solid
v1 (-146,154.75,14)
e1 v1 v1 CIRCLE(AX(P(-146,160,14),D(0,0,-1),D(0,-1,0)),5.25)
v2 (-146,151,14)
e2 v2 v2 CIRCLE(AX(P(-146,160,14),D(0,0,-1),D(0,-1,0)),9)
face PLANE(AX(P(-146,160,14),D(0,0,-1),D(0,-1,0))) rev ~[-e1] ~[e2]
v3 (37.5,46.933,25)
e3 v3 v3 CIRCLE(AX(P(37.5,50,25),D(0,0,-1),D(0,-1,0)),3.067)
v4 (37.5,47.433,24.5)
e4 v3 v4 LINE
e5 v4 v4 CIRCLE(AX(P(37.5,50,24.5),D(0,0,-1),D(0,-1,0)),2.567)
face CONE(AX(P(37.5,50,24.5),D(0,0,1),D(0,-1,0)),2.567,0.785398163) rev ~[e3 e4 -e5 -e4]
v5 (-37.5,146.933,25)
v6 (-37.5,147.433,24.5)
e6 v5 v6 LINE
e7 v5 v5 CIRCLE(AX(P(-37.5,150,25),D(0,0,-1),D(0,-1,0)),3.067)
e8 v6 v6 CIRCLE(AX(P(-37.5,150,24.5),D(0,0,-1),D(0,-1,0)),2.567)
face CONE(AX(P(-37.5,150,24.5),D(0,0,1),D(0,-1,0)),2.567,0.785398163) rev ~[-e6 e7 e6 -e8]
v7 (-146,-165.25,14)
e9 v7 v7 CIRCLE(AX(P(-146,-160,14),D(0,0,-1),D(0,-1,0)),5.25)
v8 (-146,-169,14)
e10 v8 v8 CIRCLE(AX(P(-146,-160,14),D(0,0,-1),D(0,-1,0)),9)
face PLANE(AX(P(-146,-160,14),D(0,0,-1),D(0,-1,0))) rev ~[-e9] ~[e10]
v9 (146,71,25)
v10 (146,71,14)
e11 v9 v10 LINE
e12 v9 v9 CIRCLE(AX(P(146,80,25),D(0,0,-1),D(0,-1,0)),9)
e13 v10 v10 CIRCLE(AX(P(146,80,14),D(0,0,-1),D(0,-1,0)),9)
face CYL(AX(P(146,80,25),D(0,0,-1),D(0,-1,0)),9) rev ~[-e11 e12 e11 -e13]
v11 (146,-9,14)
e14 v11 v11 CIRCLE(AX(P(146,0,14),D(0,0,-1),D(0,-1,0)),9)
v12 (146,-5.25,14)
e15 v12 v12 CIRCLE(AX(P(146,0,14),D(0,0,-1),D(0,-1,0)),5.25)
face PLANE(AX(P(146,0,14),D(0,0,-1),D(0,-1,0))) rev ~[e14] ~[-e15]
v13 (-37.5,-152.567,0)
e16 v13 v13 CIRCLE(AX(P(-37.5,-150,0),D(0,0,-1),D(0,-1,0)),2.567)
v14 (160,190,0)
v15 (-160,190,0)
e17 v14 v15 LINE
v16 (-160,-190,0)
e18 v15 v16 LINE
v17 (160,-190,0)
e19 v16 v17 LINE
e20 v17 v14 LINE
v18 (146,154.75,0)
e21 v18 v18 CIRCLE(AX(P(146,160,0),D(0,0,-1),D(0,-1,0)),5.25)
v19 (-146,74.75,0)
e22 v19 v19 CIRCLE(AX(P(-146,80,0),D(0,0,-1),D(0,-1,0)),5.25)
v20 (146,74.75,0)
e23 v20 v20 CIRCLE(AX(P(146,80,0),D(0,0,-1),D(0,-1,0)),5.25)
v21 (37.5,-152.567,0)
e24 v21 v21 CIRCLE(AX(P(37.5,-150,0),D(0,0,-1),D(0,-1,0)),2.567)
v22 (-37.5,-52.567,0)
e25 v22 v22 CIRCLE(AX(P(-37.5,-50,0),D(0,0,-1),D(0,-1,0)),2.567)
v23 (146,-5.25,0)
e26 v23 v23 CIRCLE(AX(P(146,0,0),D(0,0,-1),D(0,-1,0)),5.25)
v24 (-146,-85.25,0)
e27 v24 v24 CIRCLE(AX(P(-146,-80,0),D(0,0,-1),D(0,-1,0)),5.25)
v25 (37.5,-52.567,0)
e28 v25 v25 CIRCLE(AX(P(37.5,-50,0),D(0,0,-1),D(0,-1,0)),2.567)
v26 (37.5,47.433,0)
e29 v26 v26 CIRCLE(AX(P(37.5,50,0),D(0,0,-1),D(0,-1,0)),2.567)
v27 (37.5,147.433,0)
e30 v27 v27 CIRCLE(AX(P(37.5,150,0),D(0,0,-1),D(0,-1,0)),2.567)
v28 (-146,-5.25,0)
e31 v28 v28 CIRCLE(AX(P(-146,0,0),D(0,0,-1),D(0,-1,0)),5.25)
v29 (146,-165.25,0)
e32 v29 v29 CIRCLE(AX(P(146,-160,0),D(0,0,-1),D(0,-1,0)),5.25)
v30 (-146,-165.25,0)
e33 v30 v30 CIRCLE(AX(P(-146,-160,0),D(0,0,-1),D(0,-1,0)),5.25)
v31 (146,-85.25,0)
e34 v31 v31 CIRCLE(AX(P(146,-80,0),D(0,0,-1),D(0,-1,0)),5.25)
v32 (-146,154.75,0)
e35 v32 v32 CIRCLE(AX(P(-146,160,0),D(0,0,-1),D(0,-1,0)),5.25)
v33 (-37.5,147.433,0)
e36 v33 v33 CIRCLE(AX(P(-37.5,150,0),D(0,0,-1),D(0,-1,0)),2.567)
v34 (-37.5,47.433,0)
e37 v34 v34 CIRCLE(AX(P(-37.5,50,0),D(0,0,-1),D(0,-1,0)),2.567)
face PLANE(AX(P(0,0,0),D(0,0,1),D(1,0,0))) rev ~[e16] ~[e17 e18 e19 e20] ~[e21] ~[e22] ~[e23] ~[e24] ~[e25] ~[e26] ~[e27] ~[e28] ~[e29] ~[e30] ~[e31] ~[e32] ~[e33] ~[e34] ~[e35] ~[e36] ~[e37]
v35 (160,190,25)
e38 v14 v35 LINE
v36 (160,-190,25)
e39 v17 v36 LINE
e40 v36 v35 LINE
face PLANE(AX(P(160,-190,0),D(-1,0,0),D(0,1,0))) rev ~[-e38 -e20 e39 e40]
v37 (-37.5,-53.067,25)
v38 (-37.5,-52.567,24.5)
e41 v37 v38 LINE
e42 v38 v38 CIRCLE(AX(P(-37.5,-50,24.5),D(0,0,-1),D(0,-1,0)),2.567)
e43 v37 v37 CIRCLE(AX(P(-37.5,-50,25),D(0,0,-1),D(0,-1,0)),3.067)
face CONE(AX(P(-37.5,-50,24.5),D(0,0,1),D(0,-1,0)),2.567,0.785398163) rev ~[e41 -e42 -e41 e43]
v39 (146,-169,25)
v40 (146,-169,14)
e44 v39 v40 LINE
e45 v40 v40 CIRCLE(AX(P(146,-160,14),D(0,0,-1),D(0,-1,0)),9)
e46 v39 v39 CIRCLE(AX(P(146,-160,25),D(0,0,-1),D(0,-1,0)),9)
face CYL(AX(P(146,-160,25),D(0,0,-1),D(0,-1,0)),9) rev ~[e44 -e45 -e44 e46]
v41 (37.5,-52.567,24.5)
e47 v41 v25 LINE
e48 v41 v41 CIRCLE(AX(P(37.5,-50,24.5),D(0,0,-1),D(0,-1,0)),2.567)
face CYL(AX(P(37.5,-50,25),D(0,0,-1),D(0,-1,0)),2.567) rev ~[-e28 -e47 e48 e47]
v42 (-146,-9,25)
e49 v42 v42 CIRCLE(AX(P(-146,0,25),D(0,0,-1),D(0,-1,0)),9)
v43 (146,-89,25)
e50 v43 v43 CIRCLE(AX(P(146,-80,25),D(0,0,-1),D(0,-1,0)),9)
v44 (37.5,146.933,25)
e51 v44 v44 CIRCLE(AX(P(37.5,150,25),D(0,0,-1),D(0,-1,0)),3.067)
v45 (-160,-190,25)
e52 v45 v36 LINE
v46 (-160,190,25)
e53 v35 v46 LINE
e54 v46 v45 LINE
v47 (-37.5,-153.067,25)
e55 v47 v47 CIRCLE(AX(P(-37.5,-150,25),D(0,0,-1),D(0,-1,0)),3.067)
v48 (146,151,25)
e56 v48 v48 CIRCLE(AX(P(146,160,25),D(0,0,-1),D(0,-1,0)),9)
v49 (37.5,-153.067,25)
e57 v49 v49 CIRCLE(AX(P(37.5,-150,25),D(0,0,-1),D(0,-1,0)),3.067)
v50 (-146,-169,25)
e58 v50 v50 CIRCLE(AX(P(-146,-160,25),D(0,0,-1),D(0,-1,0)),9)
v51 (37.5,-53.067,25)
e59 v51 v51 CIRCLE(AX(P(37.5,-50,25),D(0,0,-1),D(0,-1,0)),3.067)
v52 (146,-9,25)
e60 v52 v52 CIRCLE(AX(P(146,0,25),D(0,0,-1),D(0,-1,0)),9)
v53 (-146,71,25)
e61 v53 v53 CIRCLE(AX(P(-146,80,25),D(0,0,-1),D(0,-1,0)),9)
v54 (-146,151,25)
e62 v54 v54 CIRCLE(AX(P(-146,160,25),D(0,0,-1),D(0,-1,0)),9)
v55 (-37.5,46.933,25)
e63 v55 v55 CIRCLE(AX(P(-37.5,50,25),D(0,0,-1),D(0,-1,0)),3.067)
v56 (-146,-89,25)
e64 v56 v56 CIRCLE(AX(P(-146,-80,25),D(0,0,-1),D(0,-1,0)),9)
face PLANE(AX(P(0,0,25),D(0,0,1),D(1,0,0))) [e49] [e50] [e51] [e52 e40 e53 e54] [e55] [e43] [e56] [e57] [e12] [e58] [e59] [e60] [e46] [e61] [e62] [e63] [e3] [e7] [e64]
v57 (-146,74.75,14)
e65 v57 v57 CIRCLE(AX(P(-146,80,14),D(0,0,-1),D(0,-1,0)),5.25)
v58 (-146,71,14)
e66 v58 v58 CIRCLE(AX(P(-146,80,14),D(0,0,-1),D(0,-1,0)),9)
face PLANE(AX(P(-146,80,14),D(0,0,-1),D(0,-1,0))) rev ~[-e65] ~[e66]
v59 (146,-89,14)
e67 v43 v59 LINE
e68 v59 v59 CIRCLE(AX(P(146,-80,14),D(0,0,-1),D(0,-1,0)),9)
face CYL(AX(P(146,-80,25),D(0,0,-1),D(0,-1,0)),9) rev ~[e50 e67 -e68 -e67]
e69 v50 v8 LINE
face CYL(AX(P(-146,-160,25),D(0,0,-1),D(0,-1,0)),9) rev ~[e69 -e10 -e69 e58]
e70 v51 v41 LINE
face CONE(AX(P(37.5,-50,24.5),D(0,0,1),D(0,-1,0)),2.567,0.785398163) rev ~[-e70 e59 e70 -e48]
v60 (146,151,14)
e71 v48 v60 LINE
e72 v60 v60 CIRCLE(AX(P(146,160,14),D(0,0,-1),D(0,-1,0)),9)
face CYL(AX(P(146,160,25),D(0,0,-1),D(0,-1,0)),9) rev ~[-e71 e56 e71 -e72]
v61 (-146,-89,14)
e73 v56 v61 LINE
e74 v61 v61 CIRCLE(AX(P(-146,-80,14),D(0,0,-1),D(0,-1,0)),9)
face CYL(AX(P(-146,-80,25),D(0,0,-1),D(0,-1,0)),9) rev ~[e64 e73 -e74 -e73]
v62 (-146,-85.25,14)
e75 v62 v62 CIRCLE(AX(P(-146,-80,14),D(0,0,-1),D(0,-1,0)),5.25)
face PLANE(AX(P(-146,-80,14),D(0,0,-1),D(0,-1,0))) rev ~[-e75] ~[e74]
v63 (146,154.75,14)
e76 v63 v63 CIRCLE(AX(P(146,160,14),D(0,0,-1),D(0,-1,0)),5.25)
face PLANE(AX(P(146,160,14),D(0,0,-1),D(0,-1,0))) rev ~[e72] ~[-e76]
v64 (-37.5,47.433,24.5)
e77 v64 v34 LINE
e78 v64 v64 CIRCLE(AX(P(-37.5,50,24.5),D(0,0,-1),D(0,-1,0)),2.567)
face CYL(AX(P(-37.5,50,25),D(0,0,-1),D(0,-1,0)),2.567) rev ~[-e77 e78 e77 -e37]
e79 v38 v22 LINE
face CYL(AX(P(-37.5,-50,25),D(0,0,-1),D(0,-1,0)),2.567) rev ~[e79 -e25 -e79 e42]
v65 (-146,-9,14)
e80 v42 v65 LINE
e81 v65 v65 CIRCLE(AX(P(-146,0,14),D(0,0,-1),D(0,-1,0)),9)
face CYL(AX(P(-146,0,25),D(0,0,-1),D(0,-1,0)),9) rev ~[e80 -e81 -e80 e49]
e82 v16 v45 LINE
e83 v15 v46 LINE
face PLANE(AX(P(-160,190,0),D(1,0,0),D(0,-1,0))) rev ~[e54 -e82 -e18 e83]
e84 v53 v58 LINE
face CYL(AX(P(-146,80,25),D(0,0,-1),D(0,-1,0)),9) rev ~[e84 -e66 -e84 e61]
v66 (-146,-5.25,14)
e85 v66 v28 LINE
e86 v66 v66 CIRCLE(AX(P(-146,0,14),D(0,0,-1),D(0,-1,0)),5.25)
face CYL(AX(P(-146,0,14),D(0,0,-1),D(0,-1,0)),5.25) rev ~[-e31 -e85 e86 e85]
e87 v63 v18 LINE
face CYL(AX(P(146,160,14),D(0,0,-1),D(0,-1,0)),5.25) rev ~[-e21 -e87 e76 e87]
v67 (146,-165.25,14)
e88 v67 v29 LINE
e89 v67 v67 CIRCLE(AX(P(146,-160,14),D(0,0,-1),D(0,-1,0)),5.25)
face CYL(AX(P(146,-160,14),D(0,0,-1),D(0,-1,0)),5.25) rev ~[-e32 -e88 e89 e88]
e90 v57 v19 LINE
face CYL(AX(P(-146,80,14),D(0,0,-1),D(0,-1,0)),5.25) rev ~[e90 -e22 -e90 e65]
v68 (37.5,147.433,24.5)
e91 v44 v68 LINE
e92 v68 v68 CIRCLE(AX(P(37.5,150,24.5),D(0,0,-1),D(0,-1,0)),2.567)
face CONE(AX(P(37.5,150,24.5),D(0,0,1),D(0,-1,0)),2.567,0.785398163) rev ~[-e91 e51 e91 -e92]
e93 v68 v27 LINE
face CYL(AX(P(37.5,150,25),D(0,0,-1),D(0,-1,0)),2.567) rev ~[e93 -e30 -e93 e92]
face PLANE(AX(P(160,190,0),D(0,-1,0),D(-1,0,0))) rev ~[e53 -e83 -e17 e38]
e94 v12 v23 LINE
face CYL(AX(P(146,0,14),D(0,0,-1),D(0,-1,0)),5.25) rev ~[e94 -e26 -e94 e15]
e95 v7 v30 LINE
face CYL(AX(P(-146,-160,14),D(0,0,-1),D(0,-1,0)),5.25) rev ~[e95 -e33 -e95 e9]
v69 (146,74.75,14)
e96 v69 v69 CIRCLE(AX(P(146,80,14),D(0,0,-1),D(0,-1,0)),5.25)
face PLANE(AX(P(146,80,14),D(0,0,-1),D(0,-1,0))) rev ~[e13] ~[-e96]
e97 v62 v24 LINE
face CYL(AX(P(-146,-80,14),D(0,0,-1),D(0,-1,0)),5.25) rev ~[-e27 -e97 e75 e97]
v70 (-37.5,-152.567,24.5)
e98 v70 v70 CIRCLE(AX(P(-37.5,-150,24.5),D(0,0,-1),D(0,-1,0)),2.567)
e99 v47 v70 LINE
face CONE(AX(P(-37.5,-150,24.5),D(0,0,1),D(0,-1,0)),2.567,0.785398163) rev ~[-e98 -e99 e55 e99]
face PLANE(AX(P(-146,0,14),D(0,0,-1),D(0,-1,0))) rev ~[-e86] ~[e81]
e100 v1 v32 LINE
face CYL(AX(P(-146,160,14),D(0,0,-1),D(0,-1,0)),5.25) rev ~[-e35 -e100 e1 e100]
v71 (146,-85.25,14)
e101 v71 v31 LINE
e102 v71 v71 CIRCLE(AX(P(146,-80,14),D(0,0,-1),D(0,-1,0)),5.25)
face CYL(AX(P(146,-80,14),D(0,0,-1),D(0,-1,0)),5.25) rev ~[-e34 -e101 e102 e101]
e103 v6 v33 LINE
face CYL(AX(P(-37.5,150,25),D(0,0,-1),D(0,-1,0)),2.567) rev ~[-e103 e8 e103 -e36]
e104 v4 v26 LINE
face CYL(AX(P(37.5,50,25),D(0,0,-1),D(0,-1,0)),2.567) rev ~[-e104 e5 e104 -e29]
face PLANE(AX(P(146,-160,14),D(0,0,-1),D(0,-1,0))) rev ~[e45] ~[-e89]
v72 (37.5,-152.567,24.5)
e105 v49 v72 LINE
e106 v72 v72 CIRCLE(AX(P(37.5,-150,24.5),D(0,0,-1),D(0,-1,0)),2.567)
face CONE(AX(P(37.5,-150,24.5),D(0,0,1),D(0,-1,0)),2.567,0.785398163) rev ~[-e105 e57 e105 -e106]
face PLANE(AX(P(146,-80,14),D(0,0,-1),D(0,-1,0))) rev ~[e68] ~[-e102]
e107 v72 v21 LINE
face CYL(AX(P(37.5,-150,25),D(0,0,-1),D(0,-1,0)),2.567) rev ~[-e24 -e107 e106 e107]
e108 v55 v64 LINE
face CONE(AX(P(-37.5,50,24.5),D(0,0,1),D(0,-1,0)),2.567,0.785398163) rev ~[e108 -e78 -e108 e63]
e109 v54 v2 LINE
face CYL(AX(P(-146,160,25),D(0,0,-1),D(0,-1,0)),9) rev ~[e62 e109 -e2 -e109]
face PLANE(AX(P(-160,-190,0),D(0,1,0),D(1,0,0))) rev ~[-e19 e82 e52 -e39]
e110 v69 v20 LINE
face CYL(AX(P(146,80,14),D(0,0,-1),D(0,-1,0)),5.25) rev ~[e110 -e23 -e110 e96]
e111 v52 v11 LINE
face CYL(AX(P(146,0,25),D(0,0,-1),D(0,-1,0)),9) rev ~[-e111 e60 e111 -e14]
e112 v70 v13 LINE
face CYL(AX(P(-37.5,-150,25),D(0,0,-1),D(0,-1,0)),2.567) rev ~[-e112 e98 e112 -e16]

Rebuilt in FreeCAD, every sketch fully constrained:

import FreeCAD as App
import Part
import Sketcher
Q = App.Units.Quantity


def edges_at(feature, points):
    """Names of the edges that pass closest to the given points."""
    edges = feature.Shape.Edges
    near = lambda p: min(range(len(edges)), key=lambda i: edges[i].distToShape(Part.Vertex(*p))[0])
    return sorted({f"Edge{near(p) + 1}" for p in points})


def add_polygon(sketch, points):
    """Adds a closed chain of lines whose ends are joined by coincident constraints."""
    first, n = sketch.GeometryCount, len(points)
    for a, b in zip(points, points[1:] + points[:1]):
        sketch.addGeometry(Part.LineSegment(App.Vector(*a, 0), App.Vector(*b, 0)), False)
    for i in range(n):
        sketch.addConstraint(Sketcher.Constraint("Coincident", first + i, 2, first + (i + 1) % n, 1))

doc = App.newDocument("Part")
params = doc.addObject("Spreadsheet::Sheet", "Params")
for row, (alias, value) in enumerate([
    ("sketch1_width", "320 mm"),
    ("sketch1_height", "380 mm"),
    ("pad1_length", "25 mm"),
    ("hole_diameter", "5.134 mm"),
    ("chamfer_size", "0.5 mm"),
    ("sketch3_diameter", "10.5 mm"),
    ("hole2_diameter", "10.5 mm"),
    ("hole2_cbore_diameter", "18 mm"),
    ("hole2_cbore_depth", "11 mm"),
], start=1):
    params.set(f"A{row}", alias)
    params.set(f"B{row}", "=" + value)
    params.setAlias(f"B{row}", alias)

body = doc.addObject("PartDesign::Body", "Body")

sketch1 = doc.addObject("Sketcher::SketchObject", "Sketch")
body.addObject(sketch1)
sketch1.AttachmentSupport = (doc.XY_Plane, [""])
sketch1.MapMode = "FlatFace"
add_polygon(sketch1, [(-160, 190), (-160, -190), (160, -190), (160, 190)])
sketch1.addConstraint([
    Sketcher.Constraint("Vertical", 0),
    Sketcher.Constraint("Horizontal", 1),
    Sketcher.Constraint("Vertical", 2),
    Sketcher.Constraint("Horizontal", 3),
    Sketcher.Constraint("Symmetric", 0, 2, 2, 2, -1, 1),
    Sketcher.Constraint("DistanceX", 1, 1, 1, 2, Q("320 mm")),
    Sketcher.Constraint("DistanceY", 0, 2, 0, 1, Q("380 mm")),
])
sketch1.setExpression("Constraints[9]", "Params.sketch1_width")
sketch1.setExpression("Constraints[10]", "Params.sketch1_height")
pad1 = doc.addObject("PartDesign::Pad", "Pad")
body.addObject(pad1)
pad1.Profile = sketch1
pad1.setExpression("Length", "Params.pad1_length")

sketch2 = doc.addObject("Sketcher::SketchObject", "Sketch001")
body.addObject(sketch2)
sketch2.AttachmentSupport = (doc.XY_Plane, [""])
sketch2.MapMode = "FlatFace"
sketch2.AttachmentOffset = App.Placement(App.Vector(0, 0, 25), App.Rotation())
sketch2.addGeometry([
    Part.Circle(App.Vector(-37.5, 150, 0), App.Vector(0, 0, 1), 2.6),
    Part.Circle(App.Vector(37.5, 150, 0), App.Vector(0, 0, 1), 2.6),
    Part.Circle(App.Vector(-37.5, 50, 0), App.Vector(0, 0, 1), 2.6),
    Part.Circle(App.Vector(37.5, 50, 0), App.Vector(0, 0, 1), 2.6),
    Part.Circle(App.Vector(-37.5, -50, 0), App.Vector(0, 0, 1), 2.6),
    Part.Circle(App.Vector(37.5, -50, 0), App.Vector(0, 0, 1), 2.6),
    Part.Circle(App.Vector(-37.5, -150, 0), App.Vector(0, 0, 1), 2.6),
    Part.Circle(App.Vector(37.5, -150, 0), App.Vector(0, 0, 1), 2.6),
], False)
sketch2.addConstraint([
    Sketcher.Constraint("Equal", 0, 1),
    Sketcher.Constraint("Equal", 1, 2),
    Sketcher.Constraint("Equal", 2, 3),
    Sketcher.Constraint("Equal", 3, 4),
    Sketcher.Constraint("Equal", 4, 5),
    Sketcher.Constraint("Equal", 5, 6),
    Sketcher.Constraint("Equal", 6, 7),
    Sketcher.Constraint("Symmetric", 3, 3, 4, 3, -1, 1),
    Sketcher.Constraint("Symmetric", 2, 3, 5, 3, -1, 1),
    Sketcher.Constraint("Symmetric", 1, 3, 6, 3, -1, 1),
    Sketcher.Constraint("Symmetric", 0, 3, 7, 3, -1, 1),
    Sketcher.Constraint("Symmetric", 0, 3, 1, 3, -2),
    Sketcher.Constraint("Symmetric", 2, 3, 3, 3, -2),
    Sketcher.Constraint("Vertical", 0, 3, 2, 3),
    Sketcher.Constraint("Diameter", 0, Q("5.134 mm")),
    Sketcher.Constraint("DistanceY", -1, 1, 0, 3, Q("150 mm")),
    Sketcher.Constraint("DistanceY", -1, 1, 2, 3, Q("50 mm")),
    Sketcher.Constraint("DistanceX", 0, 3, 1, 3, Q("75 mm")),
])
doc.recompute()
hole = doc.addObject("PartDesign::Hole", "Hole")
body.addObject(hole)
hole.Profile = sketch2
hole.ThreadType = "None"
hole.setExpression("Diameter", "Params.hole_diameter")
hole.DepthType = "ThroughAll"
doc.recompute()

chamfer = doc.addObject("PartDesign::Chamfer", "Chamfer")
body.addObject(chamfer)
chamfer.Base = (hole, edges_at(hole, [
    (-37.5, -147.433, 25),
    (-37.5, -47.433, 25),
    (37.5, -147.433, 25),
    (37.5, -47.433, 25),
    (-37.5, 52.567, 25),
    (-37.5, 152.567, 25),
    (37.5, 52.567, 25),
    (37.5, 152.567, 25),
]))
chamfer.setExpression("Size", "Params.chamfer_size")

sketch3 = doc.addObject("Sketcher::SketchObject", "Sketch002")
body.addObject(sketch3)
sketch3.AttachmentSupport = (doc.XY_Plane, [""])
sketch3.MapMode = "FlatFace"
sketch3.AttachmentOffset = App.Placement(App.Vector(0, 0, 25), App.Rotation())
sketch3.addGeometry([
    Part.Circle(App.Vector(146, 160, 0), App.Vector(0, 0, 1), 5),
    Part.Circle(App.Vector(146, 80, 0), App.Vector(0, 0, 1), 5),
    Part.Circle(App.Vector(146, 0, 0), App.Vector(0, 0, 1), 5),
    Part.Circle(App.Vector(146, -80, 0), App.Vector(0, 0, 1), 5),
    Part.Circle(App.Vector(146, -160, 0), App.Vector(0, 0, 1), 5),
    Part.Circle(App.Vector(-146, 160, 0), App.Vector(0, 0, 1), 5),
    Part.Circle(App.Vector(-146, 80, 0), App.Vector(0, 0, 1), 5),
    Part.Circle(App.Vector(-146, 0, 0), App.Vector(0, 0, 1), 5),
    Part.Circle(App.Vector(-146, -80, 0), App.Vector(0, 0, 1), 5),
    Part.Circle(App.Vector(-146, -160, 0), App.Vector(0, 0, 1), 5),
], False)
sketch3.addConstraint([
    Sketcher.Constraint("Equal", 0, 1),
    Sketcher.Constraint("Equal", 1, 2),
    Sketcher.Constraint("Equal", 2, 3),
    Sketcher.Constraint("Equal", 3, 4),
    Sketcher.Constraint("Equal", 4, 5),
    Sketcher.Constraint("Equal", 5, 6),
    Sketcher.Constraint("Equal", 6, 7),
    Sketcher.Constraint("Equal", 7, 8),
    Sketcher.Constraint("Equal", 8, 9),
    Sketcher.Constraint("Symmetric", 4, 3, 5, 3, -1, 1),
    Sketcher.Constraint("Symmetric", 3, 3, 6, 3, -1, 1),
    Sketcher.Constraint("Symmetric", 2, 3, 7, 3, -1, 1),
    Sketcher.Constraint("Symmetric", 1, 3, 8, 3, -1, 1),
    Sketcher.Constraint("Symmetric", 0, 3, 9, 3, -1, 1),
    Sketcher.Constraint("Symmetric", 0, 3, 5, 3, -2),
    Sketcher.Constraint("Symmetric", 1, 3, 6, 3, -2),
    Sketcher.Constraint("PointOnObject", 2, 3, -1),
    Sketcher.Constraint("Vertical", 0, 3, 1, 3),
    Sketcher.Constraint("Vertical", 1, 3, 2, 3),
    Sketcher.Constraint("Diameter", 0, Q("10.5 mm")),
    Sketcher.Constraint("DistanceX", -1, 1, 0, 3, Q("146 mm")),
    Sketcher.Constraint("DistanceY", -1, 1, 0, 3, Q("160 mm")),
    Sketcher.Constraint("DistanceY", -1, 1, 1, 3, Q("80 mm")),
])
sketch3.setExpression("Constraints[19]", "Params.sketch3_diameter")
doc.recompute()
hole2 = doc.addObject("PartDesign::Hole", "Hole001")
body.addObject(hole2)
hole2.Profile = sketch3
hole2.ThreadType = "None"
hole2.setExpression("Diameter", "Params.hole2_diameter")
hole2.DepthType = "ThroughAll"
hole2.HoleCutType = "Counterbore"
hole2.setExpression("HoleCutDiameter", "Params.hole2_cbore_diameter")
hole2.setExpression("HoleCutDepth", "Params.hole2_cbore_depth")

doc.recompute()
